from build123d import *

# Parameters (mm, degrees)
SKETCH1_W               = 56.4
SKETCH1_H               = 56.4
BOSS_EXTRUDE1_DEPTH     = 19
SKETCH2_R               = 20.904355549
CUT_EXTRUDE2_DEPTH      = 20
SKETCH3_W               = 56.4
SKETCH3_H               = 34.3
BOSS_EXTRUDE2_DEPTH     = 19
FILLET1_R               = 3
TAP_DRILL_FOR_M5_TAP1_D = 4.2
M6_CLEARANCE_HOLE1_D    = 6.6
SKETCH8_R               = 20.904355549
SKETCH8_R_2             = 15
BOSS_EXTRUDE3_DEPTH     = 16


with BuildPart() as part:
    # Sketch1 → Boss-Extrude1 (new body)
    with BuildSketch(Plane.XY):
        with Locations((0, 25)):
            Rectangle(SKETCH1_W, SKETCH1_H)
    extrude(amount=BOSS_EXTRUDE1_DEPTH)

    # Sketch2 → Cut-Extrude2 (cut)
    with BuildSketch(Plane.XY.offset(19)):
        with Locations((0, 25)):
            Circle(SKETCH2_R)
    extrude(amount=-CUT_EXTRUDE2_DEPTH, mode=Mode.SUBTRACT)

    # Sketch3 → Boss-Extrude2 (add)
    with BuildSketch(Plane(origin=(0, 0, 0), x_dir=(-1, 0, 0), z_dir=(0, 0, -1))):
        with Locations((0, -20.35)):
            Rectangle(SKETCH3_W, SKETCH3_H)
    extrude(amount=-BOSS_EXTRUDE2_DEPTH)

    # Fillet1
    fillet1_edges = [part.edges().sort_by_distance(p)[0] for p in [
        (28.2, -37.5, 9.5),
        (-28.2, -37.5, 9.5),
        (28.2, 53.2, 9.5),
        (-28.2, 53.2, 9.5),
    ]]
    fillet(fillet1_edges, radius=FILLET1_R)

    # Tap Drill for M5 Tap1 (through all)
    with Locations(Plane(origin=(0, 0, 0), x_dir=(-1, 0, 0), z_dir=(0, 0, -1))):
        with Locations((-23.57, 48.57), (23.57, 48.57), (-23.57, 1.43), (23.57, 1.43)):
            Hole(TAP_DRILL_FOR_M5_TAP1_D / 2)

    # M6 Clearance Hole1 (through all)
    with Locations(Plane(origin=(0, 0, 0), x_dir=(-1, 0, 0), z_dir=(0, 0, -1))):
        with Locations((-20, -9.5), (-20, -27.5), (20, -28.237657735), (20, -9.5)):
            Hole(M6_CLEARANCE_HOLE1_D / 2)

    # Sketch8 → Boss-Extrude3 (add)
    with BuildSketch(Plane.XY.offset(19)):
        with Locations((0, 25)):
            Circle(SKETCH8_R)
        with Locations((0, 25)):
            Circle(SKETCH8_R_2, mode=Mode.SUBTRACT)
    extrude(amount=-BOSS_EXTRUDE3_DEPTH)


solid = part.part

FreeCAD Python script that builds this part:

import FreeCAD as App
import Part
import Sketcher

V = App.Vector
Q = App.Units.Quantity


def edges_at(feature, points):
    """Names of the edges that pass closest to the given points."""
    edges = feature.Shape.Edges
    near = lambda p: min(range(len(edges)), key=lambda i: edges[i].distToShape(Part.Vertex(*p))[0])
    return sorted({f"Edge{near(p) + 1}" for p in points})


def add_polygon(sketch, points):
    """Adds a closed chain of lines whose ends are joined by coincident constraints."""
    first, n = sketch.GeometryCount, len(points)
    for a, b in zip(points, points[1:] + points[:1]):
        sketch.addGeometry(Part.LineSegment(App.Vector(*a, 0), App.Vector(*b, 0)), False)
    for i in range(n):
        sketch.addConstraint(Sketcher.Constraint("Coincident", first + i, 2, first + (i + 1) % n, 1))

doc = App.newDocument("Part")
body = doc.addObject("PartDesign::Body", "Body")

sketch1 = body.newObject("Sketcher::SketchObject", "Sketch")
sketch1.AttachmentSupport = (doc.getObject("XY_Plane"), [""])
sketch1.MapMode = "FlatFace"
add_polygon(sketch1, [(-28.2, 53.2), (-28.2, -3.2), (28.2, -3.2), (28.2, 53.2)])
sketch1.addConstraint(Sketcher.Constraint("Vertical", 0))
sketch1.addConstraint(Sketcher.Constraint("Horizontal", 1))
sketch1.addConstraint(Sketcher.Constraint("Vertical", 2))
sketch1.addConstraint(Sketcher.Constraint("Horizontal", 3))
sketch1.addConstraint(Sketcher.Constraint("Equal", 3, 0))
sketch1.addConstraint(Sketcher.Constraint("DistanceX", 1, 1, 1, 2, Q("56.4 mm")))
sketch1.addConstraint(Sketcher.Constraint("DistanceX", 0, 2, -1, 1, Q("28.2 mm")))
sketch1.addConstraint(Sketcher.Constraint("DistanceY", 0, 2, -1, 1, Q("3.2 mm")))
pad1 = body.newObject("PartDesign::Pad", "Pad")
pad1.Profile = sketch1
pad1.Length = 19

sketch2 = body.newObject("Sketcher::SketchObject", "Sketch001")
sketch2.AttachmentSupport = (doc.getObject("XY_Plane"), [""])
sketch2.MapMode = "FlatFace"
sketch2.AttachmentOffset = App.Placement(V(0, 0, 19), App.Rotation())
sketch2.addGeometry(Part.Circle(V(0, 25, 0), V(0, 0, 1), 20.904356), False)
sketch2.addConstraint(Sketcher.Constraint("PointOnObject", 0, 3, -2))
sketch2.addConstraint(Sketcher.Constraint("DistanceY", -1, 1, 0, 3, Q("25 mm")))
sketch2.addConstraint(Sketcher.Constraint("Diameter", 0, Q("41.808711 mm")))
pocket1 = body.newObject("PartDesign::Pocket", "Pocket")
pocket1.Profile = sketch2
pocket1.Length = 20

sketch3 = body.newObject("Sketcher::SketchObject", "Sketch002")
sketch3.AttachmentSupport = (doc.getObject("XY_Plane"), [""])
sketch3.MapMode = "FlatFace"
add_polygon(sketch3, [(28.2, -3.2), (28.2, -37.5), (-28.2, -37.5), (-28.2, -3.2)])
sketch3.addConstraint(Sketcher.Constraint("Vertical", 0))
sketch3.addConstraint(Sketcher.Constraint("Horizontal", 1))
sketch3.addConstraint(Sketcher.Constraint("Vertical", 2))
sketch3.addConstraint(Sketcher.Constraint("Horizontal", 3))
sketch3.addConstraint(Sketcher.Constraint("DistanceX", 1, 2, 1, 1, Q("56.4 mm")))
sketch3.addConstraint(Sketcher.Constraint("DistanceY", 0, 2, 0, 1, Q("34.3 mm")))
sketch3.addConstraint(Sketcher.Constraint("DistanceX", -1, 1, 0, 2, Q("28.2 mm")))
sketch3.addConstraint(Sketcher.Constraint("DistanceY", 0, 2, -1, 1, Q("37.5 mm")))
pad2 = body.newObject("PartDesign::Pad", "Pad001")
pad2.Profile = sketch3
pad2.Length = 19
doc.recompute()

fillet = body.newObject("PartDesign::Fillet", "Fillet")
fillet.Base = (pad2, edges_at(pad2, [
    (28.2, -37.5, 9.5),
    (-28.2, -37.5, 9.5),
    (28.2, 53.2, 9.5),
    (-28.2, 53.2, 9.5),
]))
fillet.Radius = 3

sketch4 = body.newObject("Sketcher::SketchObject", "Sketch003")
sketch4.AttachmentSupport = (doc.getObject("XY_Plane"), [""])
sketch4.MapMode = "FlatFace"
sketch4.addGeometry(Part.Circle(V(23.57, 48.57, 0), V(0, 0, 1), 2.1), False)
sketch4.addGeometry(Part.Circle(V(-23.57, 48.57, 0), V(0, 0, 1), 2.1), False)
sketch4.addGeometry(Part.Circle(V(23.57, 1.43, 0), V(0, 0, 1), 2.1), False)
sketch4.addGeometry(Part.Circle(V(-23.57, 1.43, 0), V(0, 0, 1), 2.1), False)
sketch4.addConstraint(Sketcher.Constraint("Equal", 0, 1))
sketch4.addConstraint(Sketcher.Constraint("Equal", 1, 2))
sketch4.addConstraint(Sketcher.Constraint("Equal", 2, 3))
sketch4.addConstraint(Sketcher.Constraint("Symmetric", 0, 3, 1, 3, -2))
sketch4.addConstraint(Sketcher.Constraint("Symmetric", 2, 3, 3, 3, -2))
sketch4.addConstraint(Sketcher.Constraint("Vertical", 0, 3, 2, 3))
sketch4.addConstraint(Sketcher.Constraint("Diameter", 0, Q("4.2 mm")))
sketch4.addConstraint(Sketcher.Constraint("DistanceX", -1, 1, 0, 3, Q("23.57 mm")))
sketch4.addConstraint(Sketcher.Constraint("DistanceY", -1, 1, 0, 3, Q("48.57 mm")))
sketch4.addConstraint(Sketcher.Constraint("DistanceY", -1, 1, 2, 3, Q("1.43 mm")))
doc.recompute()
hole = body.newObject("PartDesign::Hole", "Hole")
hole.Profile = sketch4
hole.ThreadType = "None"
hole.Diameter = 4.2
hole.DepthType = "ThroughAll"
hole.Reversed = True

sketch5 = body.newObject("Sketcher::SketchObject", "Sketch004")
sketch5.AttachmentSupport = (doc.getObject("XY_Plane"), [""])
sketch5.MapMode = "FlatFace"
sketch5.addGeometry(Part.Circle(V(20, -9.5, 0), V(0, 0, 1), 3.3), False)
sketch5.addGeometry(Part.Circle(V(20, -27.5, 0), V(0, 0, 1), 3.3), False)
sketch5.addGeometry(Part.Circle(V(-20, -28.237658, 0), V(0, 0, 1), 3.3), False)
sketch5.addGeometry(Part.Circle(V(-20, -9.5, 0), V(0, 0, 1), 3.3), False)
sketch5.addConstraint(Sketcher.Constraint("Equal", 0, 1))
sketch5.addConstraint(Sketcher.Constraint("Equal", 1, 2))
sketch5.addConstraint(Sketcher.Constraint("Equal", 2, 3))
sketch5.addConstraint(Sketcher.Constraint("Symmetric", 0, 3, 3, 3, -2))
sketch5.addConstraint(Sketcher.Constraint("Vertical", 0, 3, 1, 3))
sketch5.addConstraint(Sketcher.Constraint("Vertical", 2, 3, 3, 3))
sketch5.addConstraint(Sketcher.Constraint("Diameter", 0, Q("6.6 mm")))
sketch5.addConstraint(Sketcher.Constraint("DistanceX", -1, 1, 0, 3, Q("20 mm")))
sketch5.addConstraint(Sketcher.Constraint("DistanceY", 1, 3, 0, 3, Q("18 mm")))
sketch5.addConstraint(Sketcher.Constraint("DistanceY", 0, 3, -1, 1, Q("9.5 mm")))
sketch5.addConstraint(Sketcher.Constraint("DistanceY", 2, 3, -1, 1, Q("28.237658 mm")))
doc.recompute()
hole2 = body.newObject("PartDesign::Hole", "Hole001")
hole2.Profile = sketch5
hole2.ThreadType = "None"
hole2.Diameter = 6.6
hole2.DepthType = "ThroughAll"
hole2.Reversed = True

sketch6 = body.newObject("Sketcher::SketchObject", "Sketch005")
sketch6.AttachmentSupport = (doc.getObject("XY_Plane"), [""])
sketch6.MapMode = "FlatFace"
sketch6.AttachmentOffset = App.Placement(V(0, 0, 19), App.Rotation())
sketch6.addGeometry(Part.Circle(V(0, 25, 0), V(0, 0, 1), 20.904356), False)
sketch6.addGeometry(Part.Circle(V(0, 25, 0), V(0, 0, 1), 15), False)
sketch6.addConstraint(Sketcher.Constraint("Coincident", 1, 3, 0, 3))
sketch6.addConstraint(Sketcher.Constraint("PointOnObject", 0, 3, -2))
sketch6.addConstraint(Sketcher.Constraint("Diameter", 1, Q("30 mm")))
sketch6.addConstraint(Sketcher.Constraint("DistanceY", -1, 1, 0, 3, Q("25 mm")))
sketch6.addConstraint(Sketcher.Constraint("Diameter", 0, Q("41.808711 mm")))
pad3 = body.newObject("PartDesign::Pad", "Pad002")
pad3.Profile = sketch6
pad3.Length = 16
pad3.Reversed = True

doc.recompute()
